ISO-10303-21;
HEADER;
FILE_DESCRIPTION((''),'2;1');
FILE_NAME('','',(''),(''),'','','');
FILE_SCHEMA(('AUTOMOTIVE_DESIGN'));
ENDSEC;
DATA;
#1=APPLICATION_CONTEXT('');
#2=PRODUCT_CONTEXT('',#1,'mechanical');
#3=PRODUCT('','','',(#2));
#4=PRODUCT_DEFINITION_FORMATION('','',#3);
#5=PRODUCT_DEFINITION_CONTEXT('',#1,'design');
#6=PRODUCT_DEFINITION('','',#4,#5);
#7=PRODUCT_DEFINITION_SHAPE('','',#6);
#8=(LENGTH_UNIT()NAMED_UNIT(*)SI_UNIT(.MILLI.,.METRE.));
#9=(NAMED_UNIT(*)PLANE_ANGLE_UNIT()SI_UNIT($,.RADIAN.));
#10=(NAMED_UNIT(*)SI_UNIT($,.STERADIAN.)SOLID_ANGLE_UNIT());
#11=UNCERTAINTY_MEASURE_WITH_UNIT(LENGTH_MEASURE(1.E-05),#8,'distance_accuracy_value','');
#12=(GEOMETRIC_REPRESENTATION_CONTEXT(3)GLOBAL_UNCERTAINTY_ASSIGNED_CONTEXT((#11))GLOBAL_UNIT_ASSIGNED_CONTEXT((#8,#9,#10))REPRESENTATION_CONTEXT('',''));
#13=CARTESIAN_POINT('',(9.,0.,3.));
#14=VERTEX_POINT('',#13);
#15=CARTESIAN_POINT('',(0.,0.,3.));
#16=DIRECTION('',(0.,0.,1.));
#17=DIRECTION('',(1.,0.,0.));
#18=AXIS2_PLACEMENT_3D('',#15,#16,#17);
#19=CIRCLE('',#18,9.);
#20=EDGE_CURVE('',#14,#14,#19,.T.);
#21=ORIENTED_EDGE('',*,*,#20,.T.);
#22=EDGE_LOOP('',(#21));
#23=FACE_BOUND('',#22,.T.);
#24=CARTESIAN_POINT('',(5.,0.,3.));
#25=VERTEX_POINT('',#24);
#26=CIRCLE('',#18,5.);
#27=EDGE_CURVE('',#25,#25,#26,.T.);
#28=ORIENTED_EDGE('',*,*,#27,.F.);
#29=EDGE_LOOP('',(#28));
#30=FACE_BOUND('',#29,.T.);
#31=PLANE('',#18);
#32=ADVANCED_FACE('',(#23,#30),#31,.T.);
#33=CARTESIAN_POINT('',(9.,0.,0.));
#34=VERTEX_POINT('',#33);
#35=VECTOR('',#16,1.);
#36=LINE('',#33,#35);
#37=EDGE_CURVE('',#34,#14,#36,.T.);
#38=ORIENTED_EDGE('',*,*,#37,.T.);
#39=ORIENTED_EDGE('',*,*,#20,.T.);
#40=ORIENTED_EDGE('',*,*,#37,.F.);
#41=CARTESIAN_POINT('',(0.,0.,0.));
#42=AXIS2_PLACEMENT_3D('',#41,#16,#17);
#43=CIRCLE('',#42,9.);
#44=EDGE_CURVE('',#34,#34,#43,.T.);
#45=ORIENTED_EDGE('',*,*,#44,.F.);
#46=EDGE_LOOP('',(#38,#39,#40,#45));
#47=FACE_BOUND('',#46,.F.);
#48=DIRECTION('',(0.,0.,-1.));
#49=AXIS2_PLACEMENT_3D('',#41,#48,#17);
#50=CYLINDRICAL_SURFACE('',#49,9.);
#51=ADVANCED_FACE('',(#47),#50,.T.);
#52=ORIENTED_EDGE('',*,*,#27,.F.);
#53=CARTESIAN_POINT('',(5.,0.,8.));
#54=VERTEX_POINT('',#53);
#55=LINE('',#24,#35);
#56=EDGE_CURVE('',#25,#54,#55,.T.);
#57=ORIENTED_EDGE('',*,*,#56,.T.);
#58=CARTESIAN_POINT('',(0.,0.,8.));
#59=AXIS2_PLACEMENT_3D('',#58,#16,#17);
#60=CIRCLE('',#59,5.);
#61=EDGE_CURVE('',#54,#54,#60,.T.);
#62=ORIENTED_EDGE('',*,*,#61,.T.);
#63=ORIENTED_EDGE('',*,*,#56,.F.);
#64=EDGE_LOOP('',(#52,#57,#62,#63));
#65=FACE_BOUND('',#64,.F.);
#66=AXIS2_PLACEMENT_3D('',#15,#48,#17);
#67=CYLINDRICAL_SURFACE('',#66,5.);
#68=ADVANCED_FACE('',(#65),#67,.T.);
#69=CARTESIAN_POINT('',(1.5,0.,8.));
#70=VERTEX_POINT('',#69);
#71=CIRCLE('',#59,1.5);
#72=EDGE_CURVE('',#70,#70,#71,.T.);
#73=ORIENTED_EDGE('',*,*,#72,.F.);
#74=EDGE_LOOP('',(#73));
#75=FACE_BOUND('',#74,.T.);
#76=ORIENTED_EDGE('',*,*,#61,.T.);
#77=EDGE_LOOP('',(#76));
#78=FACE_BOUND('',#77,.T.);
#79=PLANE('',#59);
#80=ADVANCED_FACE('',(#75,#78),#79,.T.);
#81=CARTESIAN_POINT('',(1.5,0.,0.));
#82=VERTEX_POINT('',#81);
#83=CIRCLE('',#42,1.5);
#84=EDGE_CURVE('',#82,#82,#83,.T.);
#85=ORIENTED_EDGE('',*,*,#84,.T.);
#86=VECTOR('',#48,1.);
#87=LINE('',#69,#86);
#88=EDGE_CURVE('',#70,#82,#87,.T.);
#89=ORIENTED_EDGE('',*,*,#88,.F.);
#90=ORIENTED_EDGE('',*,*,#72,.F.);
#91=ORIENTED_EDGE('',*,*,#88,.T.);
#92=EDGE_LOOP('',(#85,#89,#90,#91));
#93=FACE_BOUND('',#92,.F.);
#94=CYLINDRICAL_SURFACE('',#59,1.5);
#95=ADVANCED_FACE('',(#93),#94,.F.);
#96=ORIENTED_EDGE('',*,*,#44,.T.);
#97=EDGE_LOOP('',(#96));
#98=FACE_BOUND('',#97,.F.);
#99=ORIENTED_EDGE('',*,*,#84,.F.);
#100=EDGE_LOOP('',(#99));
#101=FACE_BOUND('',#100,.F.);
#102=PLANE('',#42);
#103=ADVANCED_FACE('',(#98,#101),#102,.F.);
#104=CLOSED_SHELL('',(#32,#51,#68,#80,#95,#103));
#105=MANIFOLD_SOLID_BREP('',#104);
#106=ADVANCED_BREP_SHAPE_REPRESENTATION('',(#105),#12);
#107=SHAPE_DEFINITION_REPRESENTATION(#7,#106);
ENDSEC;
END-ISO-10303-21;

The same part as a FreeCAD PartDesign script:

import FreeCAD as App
import Part
import Sketcher

doc = App.newDocument("Part")
params = doc.addObject("Spreadsheet::Sheet", "Params")
for row, (alias, value) in enumerate([
    ("sketch1_diameter", "18 mm"),
    ("pad1_length", "3 mm"),
    ("sketch2_diameter", "10 mm"),
    ("pad2_length", "5 mm"),
    ("sketch3_diameter", "3 mm"),
    ("pocket1_length", "15 mm"),
], start=1):
    params.set(f"A{row}", alias)
    params.set(f"B{row}", "=" + value)
    params.setAlias(f"B{row}", alias)

body = doc.addObject("PartDesign::Body", "Body")

# Sketch on XY plane
sketch1 = body.newObject("Sketcher::SketchObject", "Sketch")
sketch1.AttachmentSupport = (doc.getObject("XY_Plane"), [""])
sketch1.MapMode = "FlatFace"
sketch1.addGeometry(Part.Circle(App.Vector(0, 0, 0), App.Vector(0, 0, 1), 9), False)
sketch1.addConstraint(Sketcher.Constraint("Coincident", 0, 3, -1, 1))
sketch1.addConstraint(Sketcher.Constraint("Diameter", 0, 18.0))
sketch1.setExpression("Constraints[1]", "Params.sketch1_diameter")
pad1 = body.newObject("PartDesign::Pad", "Pad")
pad1.Profile = sketch1
pad1.setExpression("Length", "Params.pad1_length")

# Sketch on XY plane
sketch2 = body.newObject("Sketcher::SketchObject", "Sketch001")
sketch2.AttachmentSupport = (doc.getObject("XY_Plane"), [""])
sketch2.MapMode = "FlatFace"
sketch2.AttachmentOffset = App.Placement(App.Vector(0, 0, 3), App.Rotation())
sketch2.addGeometry(Part.Circle(App.Vector(0, 0, 0), App.Vector(0, 0, 1), 5), False)
sketch2.addConstraint(Sketcher.Constraint("Coincident", 0, 3, -1, 1))
sketch2.addConstraint(Sketcher.Constraint("Diameter", 0, 10.0))
sketch2.setExpression("Constraints[1]", "Params.sketch2_diameter")
pad2 = body.newObject("PartDesign::Pad", "Pad001")
pad2.Profile = sketch2
pad2.setExpression("Length", "Params.pad2_length")

# Sketch on XY plane
sketch3 = body.newObject("Sketcher::SketchObject", "Sketch002")
sketch3.AttachmentSupport = (doc.getObject("XY_Plane"), [""])
sketch3.MapMode = "FlatFace"
sketch3.AttachmentOffset = App.Placement(App.Vector(0, 0, 8), App.Rotation())
sketch3.addGeometry(Part.Circle(App.Vector(0, 0, 0), App.Vector(0, 0, 1), 1.5), False)
sketch3.addConstraint(Sketcher.Constraint("Coincident", 0, 3, -1, 1))
sketch3.addConstraint(Sketcher.Constraint("Diameter", 0, 3.0))
sketch3.setExpression("Constraints[1]", "Params.sketch3_diameter")
pocket1 = body.newObject("PartDesign::Pocket", "Pocket")
pocket1.Profile = sketch3
pocket1.setExpression("Length", "Params.pocket1_length")

doc.recompute()
